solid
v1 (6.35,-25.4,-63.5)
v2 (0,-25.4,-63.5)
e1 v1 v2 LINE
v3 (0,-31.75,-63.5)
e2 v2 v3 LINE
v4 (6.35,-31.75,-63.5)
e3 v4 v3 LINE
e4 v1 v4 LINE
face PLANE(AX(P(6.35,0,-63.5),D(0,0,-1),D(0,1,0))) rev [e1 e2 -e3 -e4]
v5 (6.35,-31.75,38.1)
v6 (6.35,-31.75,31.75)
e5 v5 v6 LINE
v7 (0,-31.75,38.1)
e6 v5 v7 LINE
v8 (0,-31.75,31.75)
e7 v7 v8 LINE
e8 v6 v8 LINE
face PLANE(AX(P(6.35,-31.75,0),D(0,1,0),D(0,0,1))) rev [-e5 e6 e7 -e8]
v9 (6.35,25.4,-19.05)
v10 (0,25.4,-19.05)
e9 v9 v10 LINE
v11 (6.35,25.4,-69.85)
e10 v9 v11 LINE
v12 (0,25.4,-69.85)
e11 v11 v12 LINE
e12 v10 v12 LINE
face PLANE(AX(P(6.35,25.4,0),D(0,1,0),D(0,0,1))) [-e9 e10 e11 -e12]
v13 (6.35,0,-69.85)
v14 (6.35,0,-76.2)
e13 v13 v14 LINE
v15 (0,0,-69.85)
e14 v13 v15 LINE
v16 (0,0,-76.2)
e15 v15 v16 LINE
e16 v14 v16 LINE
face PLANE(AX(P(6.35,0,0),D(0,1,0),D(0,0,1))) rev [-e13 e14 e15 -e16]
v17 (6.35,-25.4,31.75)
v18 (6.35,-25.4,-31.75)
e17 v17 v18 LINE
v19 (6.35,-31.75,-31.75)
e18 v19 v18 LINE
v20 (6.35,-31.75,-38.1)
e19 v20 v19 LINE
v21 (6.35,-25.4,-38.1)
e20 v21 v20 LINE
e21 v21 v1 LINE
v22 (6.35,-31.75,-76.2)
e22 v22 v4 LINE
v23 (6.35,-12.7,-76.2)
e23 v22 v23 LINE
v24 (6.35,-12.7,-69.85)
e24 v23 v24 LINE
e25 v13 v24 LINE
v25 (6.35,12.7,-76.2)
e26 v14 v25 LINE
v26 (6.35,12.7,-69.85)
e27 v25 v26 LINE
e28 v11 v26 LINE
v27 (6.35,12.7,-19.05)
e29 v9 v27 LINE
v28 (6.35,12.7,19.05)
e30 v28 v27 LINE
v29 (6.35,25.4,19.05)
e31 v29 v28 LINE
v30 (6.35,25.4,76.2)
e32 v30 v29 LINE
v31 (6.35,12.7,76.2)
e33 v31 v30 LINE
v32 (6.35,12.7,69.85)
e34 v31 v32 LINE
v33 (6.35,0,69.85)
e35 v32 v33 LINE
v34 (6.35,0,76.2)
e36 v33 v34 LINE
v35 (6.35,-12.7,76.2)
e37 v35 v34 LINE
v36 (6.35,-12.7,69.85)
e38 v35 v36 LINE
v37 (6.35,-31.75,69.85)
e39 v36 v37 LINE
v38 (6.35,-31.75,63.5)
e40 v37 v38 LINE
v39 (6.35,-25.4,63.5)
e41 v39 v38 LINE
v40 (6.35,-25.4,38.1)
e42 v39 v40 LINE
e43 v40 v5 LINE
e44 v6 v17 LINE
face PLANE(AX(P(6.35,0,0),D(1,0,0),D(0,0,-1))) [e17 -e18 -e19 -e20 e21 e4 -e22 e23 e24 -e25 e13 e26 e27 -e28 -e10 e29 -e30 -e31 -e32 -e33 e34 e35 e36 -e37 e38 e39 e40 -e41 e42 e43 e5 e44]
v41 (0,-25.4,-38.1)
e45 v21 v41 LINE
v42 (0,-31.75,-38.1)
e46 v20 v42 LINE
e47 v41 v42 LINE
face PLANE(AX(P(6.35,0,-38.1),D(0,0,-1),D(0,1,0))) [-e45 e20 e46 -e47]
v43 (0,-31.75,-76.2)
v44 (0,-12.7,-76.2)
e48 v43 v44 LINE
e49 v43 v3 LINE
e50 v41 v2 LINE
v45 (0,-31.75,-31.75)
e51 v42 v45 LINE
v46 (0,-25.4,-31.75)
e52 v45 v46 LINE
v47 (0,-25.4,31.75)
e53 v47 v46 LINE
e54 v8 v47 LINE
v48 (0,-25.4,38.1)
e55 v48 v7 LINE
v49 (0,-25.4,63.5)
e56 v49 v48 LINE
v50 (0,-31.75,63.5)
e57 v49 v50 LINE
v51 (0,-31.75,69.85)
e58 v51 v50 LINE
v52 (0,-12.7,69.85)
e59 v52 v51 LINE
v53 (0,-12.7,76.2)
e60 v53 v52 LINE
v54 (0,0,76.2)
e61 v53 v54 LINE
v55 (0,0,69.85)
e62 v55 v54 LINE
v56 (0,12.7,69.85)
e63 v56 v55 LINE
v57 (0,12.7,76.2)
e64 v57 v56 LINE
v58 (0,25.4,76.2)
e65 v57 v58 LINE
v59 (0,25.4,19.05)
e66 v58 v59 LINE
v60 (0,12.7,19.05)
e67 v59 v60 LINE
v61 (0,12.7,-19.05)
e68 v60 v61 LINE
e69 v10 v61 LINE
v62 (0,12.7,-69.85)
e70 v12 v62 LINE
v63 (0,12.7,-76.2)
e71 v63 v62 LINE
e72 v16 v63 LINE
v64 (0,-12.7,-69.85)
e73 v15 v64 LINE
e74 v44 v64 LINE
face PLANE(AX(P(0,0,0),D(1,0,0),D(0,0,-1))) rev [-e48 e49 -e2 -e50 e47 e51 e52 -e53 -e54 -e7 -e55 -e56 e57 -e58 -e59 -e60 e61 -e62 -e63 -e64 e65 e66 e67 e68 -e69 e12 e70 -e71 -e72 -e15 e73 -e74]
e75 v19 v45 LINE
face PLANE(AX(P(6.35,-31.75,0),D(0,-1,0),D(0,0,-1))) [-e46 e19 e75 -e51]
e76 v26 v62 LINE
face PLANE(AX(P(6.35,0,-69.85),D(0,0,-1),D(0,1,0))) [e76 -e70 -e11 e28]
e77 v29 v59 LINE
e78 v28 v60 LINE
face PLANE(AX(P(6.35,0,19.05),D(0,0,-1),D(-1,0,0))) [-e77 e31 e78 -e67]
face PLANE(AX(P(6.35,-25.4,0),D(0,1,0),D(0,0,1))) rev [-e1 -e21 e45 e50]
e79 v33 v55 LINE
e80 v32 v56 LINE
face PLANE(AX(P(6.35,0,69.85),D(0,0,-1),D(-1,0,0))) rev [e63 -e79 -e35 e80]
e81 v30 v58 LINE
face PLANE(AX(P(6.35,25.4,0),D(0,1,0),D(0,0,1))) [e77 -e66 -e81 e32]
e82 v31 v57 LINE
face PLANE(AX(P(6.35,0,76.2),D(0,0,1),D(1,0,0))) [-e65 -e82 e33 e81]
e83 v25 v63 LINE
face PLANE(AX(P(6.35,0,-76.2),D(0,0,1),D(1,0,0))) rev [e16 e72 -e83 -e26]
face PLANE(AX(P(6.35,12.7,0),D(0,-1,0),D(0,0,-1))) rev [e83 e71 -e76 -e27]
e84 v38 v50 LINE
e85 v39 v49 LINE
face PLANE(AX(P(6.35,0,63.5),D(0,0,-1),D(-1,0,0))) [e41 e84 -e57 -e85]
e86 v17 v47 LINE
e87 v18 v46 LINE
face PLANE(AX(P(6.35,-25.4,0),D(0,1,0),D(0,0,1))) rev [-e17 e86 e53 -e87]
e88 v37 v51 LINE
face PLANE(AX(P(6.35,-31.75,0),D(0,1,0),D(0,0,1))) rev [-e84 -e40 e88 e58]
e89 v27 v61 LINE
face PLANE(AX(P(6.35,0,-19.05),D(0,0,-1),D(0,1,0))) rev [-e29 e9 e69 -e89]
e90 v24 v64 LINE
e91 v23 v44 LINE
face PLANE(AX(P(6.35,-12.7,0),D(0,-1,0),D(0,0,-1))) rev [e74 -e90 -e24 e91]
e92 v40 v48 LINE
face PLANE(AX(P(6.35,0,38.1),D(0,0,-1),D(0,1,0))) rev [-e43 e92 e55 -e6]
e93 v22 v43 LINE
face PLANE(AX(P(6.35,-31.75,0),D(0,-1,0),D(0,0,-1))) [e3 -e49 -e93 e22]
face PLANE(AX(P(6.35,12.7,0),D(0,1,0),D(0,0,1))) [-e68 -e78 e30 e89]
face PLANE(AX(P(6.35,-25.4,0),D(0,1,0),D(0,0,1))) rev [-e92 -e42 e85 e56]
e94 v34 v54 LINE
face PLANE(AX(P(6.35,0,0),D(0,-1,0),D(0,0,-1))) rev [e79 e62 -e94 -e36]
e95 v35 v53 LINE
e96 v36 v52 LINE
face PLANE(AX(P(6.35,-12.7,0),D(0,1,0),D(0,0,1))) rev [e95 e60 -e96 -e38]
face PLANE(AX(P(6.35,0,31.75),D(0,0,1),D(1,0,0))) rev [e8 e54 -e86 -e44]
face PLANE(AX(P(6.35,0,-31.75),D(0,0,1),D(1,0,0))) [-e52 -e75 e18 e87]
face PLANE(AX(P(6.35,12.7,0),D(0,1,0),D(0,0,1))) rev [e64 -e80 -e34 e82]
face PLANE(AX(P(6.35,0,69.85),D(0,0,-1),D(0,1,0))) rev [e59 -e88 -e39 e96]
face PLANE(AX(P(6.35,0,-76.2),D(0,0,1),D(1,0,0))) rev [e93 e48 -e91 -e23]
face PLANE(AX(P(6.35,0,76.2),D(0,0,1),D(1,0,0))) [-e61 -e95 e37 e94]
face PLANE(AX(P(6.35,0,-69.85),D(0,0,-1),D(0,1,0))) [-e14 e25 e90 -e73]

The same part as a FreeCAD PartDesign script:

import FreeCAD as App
import Part
import Sketcher

V = App.Vector
Q = App.Units.Quantity

doc = App.newDocument("Part")
params = doc.addObject("Spreadsheet::Sheet", "Params")
for row, (alias, value) in enumerate([
    ("sketch1_height", "1 in"),
    ("sketch1_height2", "2 in"),
    ("sketch1_width", "0.5 in"),
    ("sketch1_height3", "2.5 in"),
    ("sketch1_height4", "1.5 in"),
    ("pad1_length", "0.25 in"),
    ("sketch2_width", "0.25 in"),
    ("pad2_length", "0.25 in"),
], start=1):
    params.set(f"A{row}", alias)
    params.set(f"B{row}", "=" + value)
    params.setAlias(f"B{row}", alias)

body = doc.addObject("PartDesign::Body", "Body")

sketch1 = body.newObject("Sketcher::SketchObject", "Sketch")
sketch1.AttachmentSupport = (doc.getObject("YZ_Plane"), [""])
sketch1.MapMode = "FlatFace"
sketch1.addGeometry([
    Part.LineSegment(V(25, 76, 0), V(13, 76, 0)),
    Part.LineSegment(V(13, 76, 0), V(13, 70, 0)),
    Part.LineSegment(V(13, 70, 0), V(0, 70, 0)),
    Part.LineSegment(V(0, 70, 0), V(0, 76, 0)),
    Part.LineSegment(V(0, 76, 0), V(-13, 76, 0)),
    Part.LineSegment(V(-13, 76, 0), V(-13, 70, 0)),
    Part.LineSegment(V(-13, 70, 0), V(-32, 70, 0)),
    Part.LineSegment(V(-32, 70, 0), V(-32, 64, 0)),
    Part.LineSegment(V(-32, 64, 0), V(-25, 64, 0)),
    Part.LineSegment(V(-25, 64, 0), V(-25, 38, 0)),
    Part.LineSegment(V(-25, 38, 0), V(-32, 38, 0)),
    Part.LineSegment(V(-32, 38, 0), V(-32, 32, 0)),
    Part.LineSegment(V(-32, 32, 0), V(-25, 32, 0)),
    Part.LineSegment(V(-25, 32, 0), V(-25, -32, 0)),
    Part.LineSegment(V(-25, -32, 0), V(-32, -32, 0)),
    Part.LineSegment(V(-32, -32, 0), V(-32, -38, 0)),
    Part.LineSegment(V(-32, -38, 0), V(-25, -38, 0)),
    Part.LineSegment(V(-25, -38, 0), V(-25, -64, 0)),
    Part.LineSegment(V(-25, -64, 0), V(-32, -64, 0)),
    Part.LineSegment(V(-32, -64, 0), V(-32, -70, 0)),
    Part.LineSegment(V(-32, -70, 0), V(-25, -70, 0)),
    Part.LineSegment(V(-25, -70, 0), V(-25, -76, 0)),
    Part.LineSegment(V(-25, -76, 0), V(-13, -76, 0)),
    Part.LineSegment(V(-13, -76, 0), V(-13, -70, 0)),
    Part.LineSegment(V(-13, -70, 0), V(0, -70, 0)),
    Part.LineSegment(V(0, -70, 0), V(0, -76, 0)),
    Part.LineSegment(V(0, -76, 0), V(13, -76, 0)),
    Part.LineSegment(V(13, -76, 0), V(13, -70, 0)),
    Part.LineSegment(V(13, -70, 0), V(25, -70, 0)),
    Part.LineSegment(V(25, -70, 0), V(25, -19, 0)),
    Part.LineSegment(V(25, -19, 0), V(13, -19, 0)),
    Part.LineSegment(V(13, -19, 0), V(13, 19, 0)),
    Part.LineSegment(V(13, 19, 0), V(25, 19, 0)),
    Part.LineSegment(V(25, 19, 0), V(25, 76, 0)),
], False)
sketch1.addConstraint([
    Sketcher.Constraint("Coincident", 0, 2, 1, 1),
    Sketcher.Constraint("Coincident", 1, 2, 2, 1),
    Sketcher.Constraint("Coincident", 2, 2, 3, 1),
    Sketcher.Constraint("Coincident", 3, 2, 4, 1),
    Sketcher.Constraint("Coincident", 4, 2, 5, 1),
    Sketcher.Constraint("Coincident", 5, 2, 6, 1),
    Sketcher.Constraint("Coincident", 6, 2, 7, 1),
    Sketcher.Constraint("Coincident", 7, 2, 8, 1),
    Sketcher.Constraint("Coincident", 8, 2, 9, 1),
    Sketcher.Constraint("Coincident", 9, 2, 10, 1),
    Sketcher.Constraint("Coincident", 10, 2, 11, 1),
    Sketcher.Constraint("Coincident", 11, 2, 12, 1),
    Sketcher.Constraint("Coincident", 12, 2, 13, 1),
    Sketcher.Constraint("Coincident", 13, 2, 14, 1),
    Sketcher.Constraint("Coincident", 14, 2, 15, 1),
    Sketcher.Constraint("Coincident", 15, 2, 16, 1),
    Sketcher.Constraint("Coincident", 16, 2, 17, 1),
    Sketcher.Constraint("Coincident", 17, 2, 18, 1),
    Sketcher.Constraint("Coincident", 18, 2, 19, 1),
    Sketcher.Constraint("Coincident", 19, 2, 20, 1),
    Sketcher.Constraint("Coincident", 20, 2, 21, 1),
    Sketcher.Constraint("Coincident", 21, 2, 22, 1),
    Sketcher.Constraint("Coincident", 22, 2, 23, 1),
    Sketcher.Constraint("Coincident", 23, 2, 24, 1),
    Sketcher.Constraint("Coincident", 24, 2, 25, 1),
    Sketcher.Constraint("Coincident", 25, 2, 26, 1),
    Sketcher.Constraint("Coincident", 26, 2, 27, 1),
    Sketcher.Constraint("Coincident", 27, 2, 28, 1),
    Sketcher.Constraint("Coincident", 28, 2, 29, 1),
    Sketcher.Constraint("Coincident", 29, 2, 30, 1),
    Sketcher.Constraint("Coincident", 30, 2, 31, 1),
    Sketcher.Constraint("Coincident", 31, 2, 32, 1),
    Sketcher.Constraint("Coincident", 32, 2, 33, 1),
    Sketcher.Constraint("Coincident", 33, 2, 0, 1),
    Sketcher.Constraint("Horizontal", 0),
    Sketcher.Constraint("Vertical", 1),
    Sketcher.Constraint("Horizontal", 2),
    Sketcher.Constraint("Vertical", 3),
    Sketcher.Constraint("Horizontal", 4),
    Sketcher.Constraint("Vertical", 5),
    Sketcher.Constraint("Horizontal", 6),
    Sketcher.Constraint("Vertical", 7),
    Sketcher.Constraint("Horizontal", 8),
    Sketcher.Constraint("Vertical", 9),
    Sketcher.Constraint("Horizontal", 10),
    Sketcher.Constraint("Vertical", 11),
    Sketcher.Constraint("Horizontal", 12),
    Sketcher.Constraint("Vertical", 13),
    Sketcher.Constraint("Horizontal", 14),
    Sketcher.Constraint("Vertical", 15),
    Sketcher.Constraint("Horizontal", 16),
    Sketcher.Constraint("Vertical", 17),
    Sketcher.Constraint("Horizontal", 18),
    Sketcher.Constraint("Vertical", 19),
    Sketcher.Constraint("Horizontal", 20),
    Sketcher.Constraint("Vertical", 21),
    Sketcher.Constraint("Horizontal", 22),
    Sketcher.Constraint("Vertical", 23),
    Sketcher.Constraint("Horizontal", 24),
    Sketcher.Constraint("Vertical", 25),
    Sketcher.Constraint("Horizontal", 26),
    Sketcher.Constraint("Vertical", 27),
    Sketcher.Constraint("Horizontal", 28),
    Sketcher.Constraint("Vertical", 29),
    Sketcher.Constraint("Horizontal", 30),
    Sketcher.Constraint("Vertical", 31),
    Sketcher.Constraint("Horizontal", 32),
    Sketcher.Constraint("Vertical", 33),
    Sketcher.Constraint("Symmetric", 0, 2, 22, 2, -1, 1),
    Sketcher.Constraint("Symmetric", 2, 2, 24, 2, -1, 1),
    Sketcher.Constraint("Symmetric", 4, 2, 26, 2, -1, 1),
    Sketcher.Constraint("Symmetric", 0, 2, 4, 2, -2),
    Sketcher.Constraint("Symmetric", 20, 2, 28, 2, -2),
    Sketcher.Constraint("Symmetric", 11, 2, 14, 2, -1),
    Sketcher.Constraint("Symmetric", 9, 2, 16, 2, -1),
    Sketcher.Constraint("Symmetric", 7, 2, 18, 2, -1),
    Sketcher.Constraint("Symmetric", 29, 2, 32, 2, -1),
    Sketcher.Constraint("PointOnObject", 2, 2, -2),
    Sketcher.Constraint("Horizontal", 2, 2, 5, 2),
    Sketcher.Constraint("Horizontal", 20, 2, 23, 2),
    Sketcher.Constraint("Vertical", 7, 2, 10, 2),
    Sketcher.Constraint("Vertical", 9, 2, 12, 2),
    Sketcher.Constraint("Vertical", 17, 2, 20, 2),
    Sketcher.Constraint("Vertical", 27, 2, 30, 2),
    Sketcher.Constraint("Equal", 0, 2),
    Sketcher.Constraint("Equal", 20, 1),
    Sketcher.Constraint("Equal", 5, 7),
    Sketcher.Constraint("Equal", 7, 11),
    Sketcher.Constraint("DistanceY", 9, 2, 9, 1, Q("1 in")),
    Sketcher.Constraint("DistanceY", 29, 1, 29, 2, Q("2 in")),
    Sketcher.Constraint("DistanceX", 0, 2, 0, 1, Q("0.5 in")),
    Sketcher.Constraint("DistanceY", 13, 2, 13, 1, Q("2.5 in")),
    Sketcher.Constraint("DistanceY", 31, 1, 31, 2, Q("1.5 in")),
])
sketch1.setExpression("Constraints[88]", "Params.sketch1_height")
sketch1.setExpression("Constraints[89]", "Params.sketch1_height2")
sketch1.setExpression("Constraints[90]", "Params.sketch1_width")
sketch1.setExpression("Constraints[91]", "Params.sketch1_height3")
sketch1.setExpression("Constraints[92]", "Params.sketch1_height4")
pad1 = body.newObject("PartDesign::Pad", "Pad")
pad1.Profile = sketch1
pad1.setExpression("Length", "Params.pad1_length")

sketch2 = body.newObject("Sketcher::SketchObject", "Sketch001")
sketch2.AttachmentSupport = (doc.getObject("YZ_Plane"), [""])
sketch2.MapMode = "FlatFace"
sketch2.addGeometry([
    Part.LineSegment(V(-25, -70, 0), V(-32, -70, 0)),
    Part.LineSegment(V(-32, -70, 0), V(-32, -76, 0)),
    Part.LineSegment(V(-32, -76, 0), V(-25, -76, 0)),
    Part.LineSegment(V(-25, -76, 0), V(-25, -70, 0)),
], False)
sketch2.addConstraint([
    Sketcher.Constraint("Coincident", 0, 2, 1, 1),
    Sketcher.Constraint("Coincident", 1, 2, 2, 1),
    Sketcher.Constraint("Coincident", 2, 2, 3, 1),
    Sketcher.Constraint("Coincident", 3, 2, 0, 1),
    Sketcher.Constraint("Horizontal", 0),
    Sketcher.Constraint("Vertical", 1),
    Sketcher.Constraint("Horizontal", 2),
    Sketcher.Constraint("Vertical", 3),
    Sketcher.Constraint("Equal", 2, 1),
    Sketcher.Constraint("DistanceY", 1, 2, -1, 1, Q("3 in")),
    Sketcher.Constraint("DistanceX", 2, 2, -1, 1, Q("1 in")),
    Sketcher.Constraint("DistanceX", 0, 2, 0, 1, Q("0.25 in")),
])
sketch2.setExpression("Constraints[11]", "Params.sketch2_width")
pad2 = body.newObject("PartDesign::Pad", "Pad001")
pad2.Profile = sketch2
pad2.setExpression("Length", "Params.pad2_length")

doc.recompute()
